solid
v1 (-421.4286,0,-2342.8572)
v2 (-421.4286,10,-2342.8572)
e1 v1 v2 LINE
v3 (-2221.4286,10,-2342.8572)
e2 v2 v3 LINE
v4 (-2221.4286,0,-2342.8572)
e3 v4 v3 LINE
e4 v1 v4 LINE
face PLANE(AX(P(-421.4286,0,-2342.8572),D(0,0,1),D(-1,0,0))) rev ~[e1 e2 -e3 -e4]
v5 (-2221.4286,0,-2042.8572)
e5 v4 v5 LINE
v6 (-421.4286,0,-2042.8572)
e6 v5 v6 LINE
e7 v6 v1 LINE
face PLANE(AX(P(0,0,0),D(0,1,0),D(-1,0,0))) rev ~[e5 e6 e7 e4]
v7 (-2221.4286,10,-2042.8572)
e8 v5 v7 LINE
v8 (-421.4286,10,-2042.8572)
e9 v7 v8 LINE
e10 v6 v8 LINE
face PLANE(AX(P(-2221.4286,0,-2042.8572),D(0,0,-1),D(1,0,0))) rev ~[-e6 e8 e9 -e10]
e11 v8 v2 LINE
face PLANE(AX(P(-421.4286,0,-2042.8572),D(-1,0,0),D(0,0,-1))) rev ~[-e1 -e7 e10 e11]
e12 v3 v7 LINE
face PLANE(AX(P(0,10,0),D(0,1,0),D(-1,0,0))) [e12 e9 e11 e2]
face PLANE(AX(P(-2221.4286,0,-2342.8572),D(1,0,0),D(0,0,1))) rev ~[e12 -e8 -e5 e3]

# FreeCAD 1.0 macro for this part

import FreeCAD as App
import Part
import Sketcher
from FreeCAD import Vector
Q = App.Units.Quantity

doc = App.newDocument("Part")
body = doc.addObject("PartDesign::Body", "Body")

# Sketch on XZ plane
sketch1 = body.newObject("Sketcher::SketchObject", "Sketch")
sketch1.AttachmentSupport = (doc.getObject("XZ_Plane"), [""])
sketch1.MapMode = "FlatFace"
sketch1.addGeometry([
    Part.LineSegment(Vector(-2221, -2343, 0), Vector(-2221, -2043, 0)),
    Part.LineSegment(Vector(-2221, -2043, 0), Vector(-421, -2043, 0)),
    Part.LineSegment(Vector(-421, -2043, 0), Vector(-421, -2343, 0)),
    Part.LineSegment(Vector(-421, -2343, 0), Vector(-2221, -2343, 0)),
], False)
sketch1.addConstraint([
    Sketcher.Constraint("Coincident", 0, 2, 1, 1),
    Sketcher.Constraint("Coincident", 1, 2, 2, 1),
    Sketcher.Constraint("Coincident", 2, 2, 3, 1),
    Sketcher.Constraint("Coincident", 3, 2, 0, 1),
    Sketcher.Constraint("Vertical", 0),
    Sketcher.Constraint("Horizontal", 1),
    Sketcher.Constraint("Vertical", 2),
    Sketcher.Constraint("Horizontal", 3),
    Sketcher.Constraint("DistanceX", 1, 1, 1, 2, Q("1800 mm")),
    Sketcher.Constraint("DistanceY", 0, 1, 0, 2, Q("300 mm")),
    Sketcher.Constraint("DistanceX", 0, 2, -1, 1, Q("2221.4286 mm")),
    Sketcher.Constraint("DistanceY", 0, 2, -1, 1, Q("2042.8572 mm")),
])
pad1 = body.newObject("PartDesign::Pad", "Pad")
pad1.Profile = sketch1
pad1.Length = 10
pad1.Reversed = True

doc.recompute()
